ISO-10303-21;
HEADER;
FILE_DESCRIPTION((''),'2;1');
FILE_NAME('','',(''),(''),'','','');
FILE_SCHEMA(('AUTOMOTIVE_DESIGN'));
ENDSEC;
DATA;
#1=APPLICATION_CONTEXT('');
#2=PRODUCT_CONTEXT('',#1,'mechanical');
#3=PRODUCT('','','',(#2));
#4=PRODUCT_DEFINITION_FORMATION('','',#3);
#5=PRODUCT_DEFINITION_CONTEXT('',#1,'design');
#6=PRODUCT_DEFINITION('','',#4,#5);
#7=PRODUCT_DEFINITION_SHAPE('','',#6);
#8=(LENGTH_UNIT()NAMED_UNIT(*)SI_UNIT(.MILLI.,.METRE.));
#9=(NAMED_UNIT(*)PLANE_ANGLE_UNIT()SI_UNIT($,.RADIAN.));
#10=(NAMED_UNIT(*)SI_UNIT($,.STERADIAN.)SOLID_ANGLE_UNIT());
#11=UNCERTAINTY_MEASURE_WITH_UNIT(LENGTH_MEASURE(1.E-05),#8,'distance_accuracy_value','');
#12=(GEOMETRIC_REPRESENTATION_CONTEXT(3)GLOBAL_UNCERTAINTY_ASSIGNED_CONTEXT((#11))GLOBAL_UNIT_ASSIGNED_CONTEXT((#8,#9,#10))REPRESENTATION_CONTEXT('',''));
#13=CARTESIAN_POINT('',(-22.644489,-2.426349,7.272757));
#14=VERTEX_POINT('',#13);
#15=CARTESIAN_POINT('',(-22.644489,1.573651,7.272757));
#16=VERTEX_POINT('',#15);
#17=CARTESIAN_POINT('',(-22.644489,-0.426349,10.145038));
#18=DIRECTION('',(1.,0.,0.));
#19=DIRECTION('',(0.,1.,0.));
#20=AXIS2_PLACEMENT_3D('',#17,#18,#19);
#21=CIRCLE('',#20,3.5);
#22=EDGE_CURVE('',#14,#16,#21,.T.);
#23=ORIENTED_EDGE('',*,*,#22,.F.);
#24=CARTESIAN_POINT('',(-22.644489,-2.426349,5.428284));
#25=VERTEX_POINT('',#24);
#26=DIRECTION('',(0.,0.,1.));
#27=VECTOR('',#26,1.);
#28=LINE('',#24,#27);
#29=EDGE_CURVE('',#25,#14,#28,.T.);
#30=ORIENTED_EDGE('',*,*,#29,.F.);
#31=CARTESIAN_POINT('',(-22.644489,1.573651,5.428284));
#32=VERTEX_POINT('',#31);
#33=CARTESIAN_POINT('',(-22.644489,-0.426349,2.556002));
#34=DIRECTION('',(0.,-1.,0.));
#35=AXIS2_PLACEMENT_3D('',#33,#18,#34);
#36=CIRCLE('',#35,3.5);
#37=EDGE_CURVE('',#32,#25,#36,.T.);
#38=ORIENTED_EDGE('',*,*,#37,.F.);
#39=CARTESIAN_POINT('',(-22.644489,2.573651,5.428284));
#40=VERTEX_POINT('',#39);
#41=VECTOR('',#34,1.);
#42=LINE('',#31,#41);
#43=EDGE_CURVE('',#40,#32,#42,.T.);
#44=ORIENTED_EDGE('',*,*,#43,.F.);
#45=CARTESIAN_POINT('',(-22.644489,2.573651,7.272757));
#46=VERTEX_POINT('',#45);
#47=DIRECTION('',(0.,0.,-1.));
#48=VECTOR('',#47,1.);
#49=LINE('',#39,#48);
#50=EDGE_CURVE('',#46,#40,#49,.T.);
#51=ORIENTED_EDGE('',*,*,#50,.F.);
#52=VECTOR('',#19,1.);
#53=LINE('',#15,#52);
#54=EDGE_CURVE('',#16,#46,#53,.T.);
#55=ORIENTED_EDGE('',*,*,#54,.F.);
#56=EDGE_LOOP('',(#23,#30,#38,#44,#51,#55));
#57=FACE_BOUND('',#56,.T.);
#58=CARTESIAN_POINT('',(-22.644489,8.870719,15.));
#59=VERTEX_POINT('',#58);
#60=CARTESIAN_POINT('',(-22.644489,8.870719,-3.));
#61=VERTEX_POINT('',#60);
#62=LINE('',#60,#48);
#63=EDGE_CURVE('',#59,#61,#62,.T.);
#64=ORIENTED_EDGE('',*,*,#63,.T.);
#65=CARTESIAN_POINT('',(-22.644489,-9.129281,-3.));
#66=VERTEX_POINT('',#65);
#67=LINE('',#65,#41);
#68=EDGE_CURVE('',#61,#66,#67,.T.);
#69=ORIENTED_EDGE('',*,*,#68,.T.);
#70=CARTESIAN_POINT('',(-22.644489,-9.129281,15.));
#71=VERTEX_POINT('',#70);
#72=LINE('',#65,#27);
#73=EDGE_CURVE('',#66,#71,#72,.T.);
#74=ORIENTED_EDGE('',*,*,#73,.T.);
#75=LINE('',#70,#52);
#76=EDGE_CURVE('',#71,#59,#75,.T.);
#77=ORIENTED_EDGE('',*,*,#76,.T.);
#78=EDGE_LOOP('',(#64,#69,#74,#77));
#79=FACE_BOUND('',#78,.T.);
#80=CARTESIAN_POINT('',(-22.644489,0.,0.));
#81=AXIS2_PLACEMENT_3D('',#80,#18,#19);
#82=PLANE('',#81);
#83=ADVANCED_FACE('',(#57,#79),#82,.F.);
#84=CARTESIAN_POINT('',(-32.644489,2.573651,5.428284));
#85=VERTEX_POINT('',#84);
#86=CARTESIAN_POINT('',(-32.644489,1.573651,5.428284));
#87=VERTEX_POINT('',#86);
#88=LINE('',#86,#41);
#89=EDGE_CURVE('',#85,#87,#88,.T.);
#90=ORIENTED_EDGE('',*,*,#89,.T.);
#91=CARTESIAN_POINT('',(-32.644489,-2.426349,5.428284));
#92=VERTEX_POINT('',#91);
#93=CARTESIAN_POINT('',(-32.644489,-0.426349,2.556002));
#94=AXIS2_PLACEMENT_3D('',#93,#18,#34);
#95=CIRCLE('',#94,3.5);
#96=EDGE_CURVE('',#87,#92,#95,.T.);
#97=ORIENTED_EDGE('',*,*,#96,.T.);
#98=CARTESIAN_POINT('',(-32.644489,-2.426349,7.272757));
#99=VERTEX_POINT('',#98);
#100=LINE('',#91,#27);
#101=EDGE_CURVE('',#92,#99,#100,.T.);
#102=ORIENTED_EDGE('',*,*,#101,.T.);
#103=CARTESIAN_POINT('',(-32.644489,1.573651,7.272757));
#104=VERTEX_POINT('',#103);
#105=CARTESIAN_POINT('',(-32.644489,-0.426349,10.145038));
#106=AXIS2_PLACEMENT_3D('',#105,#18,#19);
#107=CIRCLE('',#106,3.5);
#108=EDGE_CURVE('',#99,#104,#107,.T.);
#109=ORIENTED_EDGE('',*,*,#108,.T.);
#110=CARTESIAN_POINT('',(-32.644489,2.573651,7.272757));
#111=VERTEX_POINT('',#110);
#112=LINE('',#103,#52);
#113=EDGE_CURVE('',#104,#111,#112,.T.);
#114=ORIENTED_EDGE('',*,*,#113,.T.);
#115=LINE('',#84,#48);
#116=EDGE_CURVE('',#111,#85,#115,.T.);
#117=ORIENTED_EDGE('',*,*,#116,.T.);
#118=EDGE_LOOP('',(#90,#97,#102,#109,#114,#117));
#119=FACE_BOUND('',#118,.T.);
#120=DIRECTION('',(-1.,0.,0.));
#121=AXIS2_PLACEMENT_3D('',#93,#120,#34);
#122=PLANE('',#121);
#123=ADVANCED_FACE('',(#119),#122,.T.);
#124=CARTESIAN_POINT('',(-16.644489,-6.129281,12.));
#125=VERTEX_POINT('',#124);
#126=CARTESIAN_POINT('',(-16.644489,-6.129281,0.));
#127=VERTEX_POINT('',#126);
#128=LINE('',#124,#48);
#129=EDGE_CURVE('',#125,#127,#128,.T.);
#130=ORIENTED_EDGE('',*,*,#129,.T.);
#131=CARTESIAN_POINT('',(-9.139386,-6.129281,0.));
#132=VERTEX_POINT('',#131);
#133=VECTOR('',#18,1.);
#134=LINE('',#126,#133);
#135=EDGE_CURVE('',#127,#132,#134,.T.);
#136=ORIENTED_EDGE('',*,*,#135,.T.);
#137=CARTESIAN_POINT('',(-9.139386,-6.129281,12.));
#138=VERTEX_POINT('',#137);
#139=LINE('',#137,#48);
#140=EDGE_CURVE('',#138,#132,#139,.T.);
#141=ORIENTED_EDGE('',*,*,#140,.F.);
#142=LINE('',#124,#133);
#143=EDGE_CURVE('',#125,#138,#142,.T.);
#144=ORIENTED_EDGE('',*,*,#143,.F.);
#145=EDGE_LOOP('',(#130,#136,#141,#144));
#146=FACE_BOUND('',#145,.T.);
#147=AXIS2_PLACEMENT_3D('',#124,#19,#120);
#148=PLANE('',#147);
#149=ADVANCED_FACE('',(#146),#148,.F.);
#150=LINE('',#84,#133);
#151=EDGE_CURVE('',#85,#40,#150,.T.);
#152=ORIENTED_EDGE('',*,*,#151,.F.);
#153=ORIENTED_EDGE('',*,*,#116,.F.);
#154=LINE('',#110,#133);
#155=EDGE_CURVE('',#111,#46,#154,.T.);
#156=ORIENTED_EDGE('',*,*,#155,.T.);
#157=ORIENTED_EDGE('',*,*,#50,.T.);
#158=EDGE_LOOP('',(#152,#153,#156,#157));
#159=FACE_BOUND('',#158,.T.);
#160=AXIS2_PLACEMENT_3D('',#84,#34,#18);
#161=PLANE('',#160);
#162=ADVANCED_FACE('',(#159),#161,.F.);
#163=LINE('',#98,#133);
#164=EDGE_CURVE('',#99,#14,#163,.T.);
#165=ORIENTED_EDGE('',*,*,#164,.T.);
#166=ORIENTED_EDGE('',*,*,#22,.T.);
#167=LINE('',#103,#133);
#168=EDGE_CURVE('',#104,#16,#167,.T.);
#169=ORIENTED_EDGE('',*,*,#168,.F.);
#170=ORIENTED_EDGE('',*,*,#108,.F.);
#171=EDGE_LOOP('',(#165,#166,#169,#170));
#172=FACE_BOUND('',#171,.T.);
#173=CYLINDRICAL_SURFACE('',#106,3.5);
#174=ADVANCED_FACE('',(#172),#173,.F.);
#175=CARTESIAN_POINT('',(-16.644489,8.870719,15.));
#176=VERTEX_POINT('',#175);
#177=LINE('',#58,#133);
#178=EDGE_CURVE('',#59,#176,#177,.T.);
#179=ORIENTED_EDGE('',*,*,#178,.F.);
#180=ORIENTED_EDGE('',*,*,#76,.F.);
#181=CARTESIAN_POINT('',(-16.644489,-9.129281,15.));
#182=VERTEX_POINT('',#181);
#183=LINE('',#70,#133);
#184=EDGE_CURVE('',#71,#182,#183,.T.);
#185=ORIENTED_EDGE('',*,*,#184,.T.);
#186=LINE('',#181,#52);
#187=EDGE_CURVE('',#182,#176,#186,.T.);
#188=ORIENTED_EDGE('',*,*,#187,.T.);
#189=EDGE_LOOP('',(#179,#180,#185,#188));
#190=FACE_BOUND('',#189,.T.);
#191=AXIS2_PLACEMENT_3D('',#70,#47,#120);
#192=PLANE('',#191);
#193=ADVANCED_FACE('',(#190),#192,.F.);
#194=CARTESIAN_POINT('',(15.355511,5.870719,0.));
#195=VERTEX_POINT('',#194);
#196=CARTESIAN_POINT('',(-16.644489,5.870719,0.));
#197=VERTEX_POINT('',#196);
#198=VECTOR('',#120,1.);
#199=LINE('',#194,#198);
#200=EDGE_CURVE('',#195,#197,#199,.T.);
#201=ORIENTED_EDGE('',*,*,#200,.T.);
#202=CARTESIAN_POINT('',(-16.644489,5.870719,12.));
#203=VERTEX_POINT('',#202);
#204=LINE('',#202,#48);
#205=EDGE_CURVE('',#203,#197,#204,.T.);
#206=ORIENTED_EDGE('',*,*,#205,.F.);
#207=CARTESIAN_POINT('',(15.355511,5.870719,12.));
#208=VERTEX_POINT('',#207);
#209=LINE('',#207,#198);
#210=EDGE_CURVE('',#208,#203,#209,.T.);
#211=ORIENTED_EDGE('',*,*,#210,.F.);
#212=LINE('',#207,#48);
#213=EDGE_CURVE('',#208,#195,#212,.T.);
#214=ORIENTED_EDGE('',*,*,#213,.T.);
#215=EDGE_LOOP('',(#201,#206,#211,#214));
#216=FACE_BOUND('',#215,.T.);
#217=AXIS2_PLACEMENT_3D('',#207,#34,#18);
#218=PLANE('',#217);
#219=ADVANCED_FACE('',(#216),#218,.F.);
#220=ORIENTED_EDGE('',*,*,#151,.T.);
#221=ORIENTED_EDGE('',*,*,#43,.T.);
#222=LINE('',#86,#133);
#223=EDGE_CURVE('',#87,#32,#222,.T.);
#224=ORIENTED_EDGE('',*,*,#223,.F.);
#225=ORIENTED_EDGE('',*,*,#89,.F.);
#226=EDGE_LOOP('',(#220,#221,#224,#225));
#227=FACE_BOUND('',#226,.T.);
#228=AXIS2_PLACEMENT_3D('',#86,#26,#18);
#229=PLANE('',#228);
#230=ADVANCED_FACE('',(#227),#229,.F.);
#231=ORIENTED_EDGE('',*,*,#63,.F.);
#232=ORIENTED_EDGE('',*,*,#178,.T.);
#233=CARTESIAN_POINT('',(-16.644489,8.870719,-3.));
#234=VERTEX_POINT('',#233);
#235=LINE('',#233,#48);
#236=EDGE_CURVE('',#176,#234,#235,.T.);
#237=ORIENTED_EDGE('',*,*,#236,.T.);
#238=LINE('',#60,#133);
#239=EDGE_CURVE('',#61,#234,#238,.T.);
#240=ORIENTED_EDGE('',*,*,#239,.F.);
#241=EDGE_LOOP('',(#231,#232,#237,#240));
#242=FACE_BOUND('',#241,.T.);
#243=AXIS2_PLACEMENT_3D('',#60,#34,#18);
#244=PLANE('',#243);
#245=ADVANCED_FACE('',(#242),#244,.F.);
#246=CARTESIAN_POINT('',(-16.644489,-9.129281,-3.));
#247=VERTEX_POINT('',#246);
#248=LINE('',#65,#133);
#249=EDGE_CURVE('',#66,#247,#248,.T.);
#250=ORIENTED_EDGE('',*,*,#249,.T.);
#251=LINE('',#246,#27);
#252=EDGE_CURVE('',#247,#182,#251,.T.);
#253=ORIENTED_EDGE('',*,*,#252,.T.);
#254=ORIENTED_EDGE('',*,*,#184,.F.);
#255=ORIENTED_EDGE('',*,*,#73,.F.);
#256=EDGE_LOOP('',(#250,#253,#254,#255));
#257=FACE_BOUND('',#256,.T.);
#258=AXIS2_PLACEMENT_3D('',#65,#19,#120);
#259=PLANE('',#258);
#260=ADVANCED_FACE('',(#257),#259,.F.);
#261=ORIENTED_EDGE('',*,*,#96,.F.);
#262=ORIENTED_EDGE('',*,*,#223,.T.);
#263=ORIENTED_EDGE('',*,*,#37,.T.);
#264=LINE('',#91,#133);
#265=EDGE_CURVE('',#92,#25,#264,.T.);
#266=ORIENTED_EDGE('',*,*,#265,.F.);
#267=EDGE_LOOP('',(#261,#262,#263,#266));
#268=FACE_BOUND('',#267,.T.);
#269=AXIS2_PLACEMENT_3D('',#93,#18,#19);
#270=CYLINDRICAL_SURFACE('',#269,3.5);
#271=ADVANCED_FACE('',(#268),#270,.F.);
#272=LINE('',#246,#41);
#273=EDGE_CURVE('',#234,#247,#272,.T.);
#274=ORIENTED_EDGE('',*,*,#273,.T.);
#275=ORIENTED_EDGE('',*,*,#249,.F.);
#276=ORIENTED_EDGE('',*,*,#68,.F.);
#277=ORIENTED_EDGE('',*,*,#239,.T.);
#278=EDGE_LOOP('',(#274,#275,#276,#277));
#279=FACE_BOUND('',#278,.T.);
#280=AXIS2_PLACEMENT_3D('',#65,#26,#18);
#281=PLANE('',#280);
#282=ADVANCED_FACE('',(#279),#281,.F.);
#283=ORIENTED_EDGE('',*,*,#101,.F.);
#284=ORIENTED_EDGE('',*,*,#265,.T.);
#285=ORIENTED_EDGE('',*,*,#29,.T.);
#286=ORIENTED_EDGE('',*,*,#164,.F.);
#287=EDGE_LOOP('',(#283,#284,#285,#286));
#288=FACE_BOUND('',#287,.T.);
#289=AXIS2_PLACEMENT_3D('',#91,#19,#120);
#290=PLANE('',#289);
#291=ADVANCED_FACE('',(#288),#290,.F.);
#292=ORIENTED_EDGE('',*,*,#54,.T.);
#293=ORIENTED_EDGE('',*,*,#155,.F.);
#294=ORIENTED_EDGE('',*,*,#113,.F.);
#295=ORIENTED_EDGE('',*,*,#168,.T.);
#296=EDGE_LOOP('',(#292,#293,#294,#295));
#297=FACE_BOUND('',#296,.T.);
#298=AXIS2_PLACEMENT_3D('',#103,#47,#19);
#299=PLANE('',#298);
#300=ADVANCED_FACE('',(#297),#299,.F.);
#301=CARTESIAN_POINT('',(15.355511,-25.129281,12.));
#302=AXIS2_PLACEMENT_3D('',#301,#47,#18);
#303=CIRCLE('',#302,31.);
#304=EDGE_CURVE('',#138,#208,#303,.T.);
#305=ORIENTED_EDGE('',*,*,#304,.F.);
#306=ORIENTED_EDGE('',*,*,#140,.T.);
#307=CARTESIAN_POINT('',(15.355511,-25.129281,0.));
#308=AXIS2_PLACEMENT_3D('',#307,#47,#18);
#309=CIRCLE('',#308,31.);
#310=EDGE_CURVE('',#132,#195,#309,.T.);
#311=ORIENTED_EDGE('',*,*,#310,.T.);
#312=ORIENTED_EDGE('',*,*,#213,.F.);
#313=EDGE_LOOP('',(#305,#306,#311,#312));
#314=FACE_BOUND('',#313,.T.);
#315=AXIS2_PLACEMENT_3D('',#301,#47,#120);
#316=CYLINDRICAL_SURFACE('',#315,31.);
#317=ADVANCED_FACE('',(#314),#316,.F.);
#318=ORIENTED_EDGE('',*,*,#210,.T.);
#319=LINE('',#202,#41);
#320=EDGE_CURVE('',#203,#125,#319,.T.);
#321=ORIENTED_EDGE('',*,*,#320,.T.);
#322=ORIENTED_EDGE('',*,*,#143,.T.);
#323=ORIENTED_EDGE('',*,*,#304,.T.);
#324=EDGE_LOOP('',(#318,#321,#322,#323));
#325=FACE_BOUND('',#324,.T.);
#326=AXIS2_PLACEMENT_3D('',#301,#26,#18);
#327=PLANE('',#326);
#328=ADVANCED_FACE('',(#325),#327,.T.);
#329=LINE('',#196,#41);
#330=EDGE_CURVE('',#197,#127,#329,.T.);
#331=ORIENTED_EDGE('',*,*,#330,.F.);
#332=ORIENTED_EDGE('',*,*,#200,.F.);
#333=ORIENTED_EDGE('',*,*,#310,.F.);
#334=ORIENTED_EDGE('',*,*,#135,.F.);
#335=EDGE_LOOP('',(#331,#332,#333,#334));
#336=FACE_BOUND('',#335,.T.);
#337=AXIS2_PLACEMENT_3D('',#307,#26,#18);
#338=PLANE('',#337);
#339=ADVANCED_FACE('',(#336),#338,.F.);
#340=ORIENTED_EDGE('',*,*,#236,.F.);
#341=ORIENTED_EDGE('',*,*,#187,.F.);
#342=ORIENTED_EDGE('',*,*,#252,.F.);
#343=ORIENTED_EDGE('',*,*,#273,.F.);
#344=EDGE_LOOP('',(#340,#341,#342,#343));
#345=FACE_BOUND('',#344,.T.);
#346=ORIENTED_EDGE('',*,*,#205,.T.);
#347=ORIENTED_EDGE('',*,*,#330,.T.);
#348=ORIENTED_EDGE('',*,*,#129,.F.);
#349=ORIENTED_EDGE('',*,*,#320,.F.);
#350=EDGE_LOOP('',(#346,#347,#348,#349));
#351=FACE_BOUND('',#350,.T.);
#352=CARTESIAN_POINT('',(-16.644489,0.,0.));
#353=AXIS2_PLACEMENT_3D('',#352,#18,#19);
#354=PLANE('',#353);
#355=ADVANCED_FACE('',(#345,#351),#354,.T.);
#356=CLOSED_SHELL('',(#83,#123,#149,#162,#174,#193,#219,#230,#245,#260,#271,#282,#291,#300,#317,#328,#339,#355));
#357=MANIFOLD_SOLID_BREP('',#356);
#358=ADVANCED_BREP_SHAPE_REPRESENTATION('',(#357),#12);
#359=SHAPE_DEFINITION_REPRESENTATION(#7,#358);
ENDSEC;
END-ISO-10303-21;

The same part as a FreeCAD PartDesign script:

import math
import FreeCAD as App
import Part
import Sketcher
from FreeCAD import Vector


def add_polygon(sketch, points):
    """Adds a closed chain of lines whose ends are joined by coincident constraints."""
    first, n = sketch.GeometryCount, len(points)
    for a, b in zip(points, points[1:] + points[:1]):
        sketch.addGeometry(Part.LineSegment(App.Vector(*a, 0), App.Vector(*b, 0)), False)
    for i in range(n):
        sketch.addConstraint(Sketcher.Constraint("Coincident", first + i, 2, first + (i + 1) % n, 1))

doc = App.newDocument("Part")
params = doc.addObject("Spreadsheet::Sheet", "Params")
for row, (alias, value) in enumerate([
    ("sketch1_radius", "31 mm"),
    ("sketch1_width", "32 mm"),
    ("sketch1_height", "12 mm"),
    ("pad1_length", "12 mm"),
    ("sketch2_width", "18 mm"),
    ("pad2_length", "6 mm"),
    ("sketch3_radius", "3.5 mm"),
    ("sketch3_width", "1 mm"),
    ("pad3_length", "10 mm"),
], start=1):
    params.set(f"A{row}", alias)
    params.set(f"B{row}", "=" + value)
    params.setAlias(f"B{row}", alias)

body = doc.addObject("PartDesign::Body", "Body")

# Sketch on XY plane
sketch1 = body.newObject("Sketcher::SketchObject", "Sketch")
sketch1.AttachmentSupport = (doc.getObject("XY_Plane"), [""])
sketch1.MapMode = "FlatFace"
sketch1.addGeometry([
    Part.LineSegment(Vector(15.355511, 5.870719, 0), Vector(-16.644489, 5.870719, 0)),
    Part.LineSegment(Vector(-16.644489, 5.870719, 0), Vector(-16.644489, -6.129281, 0)),
    Part.LineSegment(Vector(-16.644489, -6.129281, 0), Vector(-9.139386, -6.129281, 0)),
    Part.ArcOfCircle(Part.Circle(Vector(15.355511, -25.129281, 0), Vector(0, 0, 1), 31), math.radians(90), math.radians(142.200278)),
], False)
sketch1.addConstraint([
    Sketcher.Constraint("Coincident", 0, 2, 1, 1),
    Sketcher.Constraint("Coincident", 1, 2, 2, 1),
    Sketcher.Constraint("Coincident", 2, 2, 3, 2),
    Sketcher.Constraint("Tangent", 3, 1, 0, 1),
    Sketcher.Constraint("Horizontal", 0),
    Sketcher.Constraint("Vertical", 1),
    Sketcher.Constraint("Horizontal", 2),
    Sketcher.Constraint("Radius", 3, 31.0),
    Sketcher.Constraint("DistanceX", 0, 2, 0, 1, 32.0),
    Sketcher.Constraint("DistanceY", 1, 2, 1, 1, 12.0),
    Sketcher.Constraint("DistanceX", -1, 1, 3, 3, 15.355511),
    Sketcher.Constraint("DistanceY", 3, 3, -1, 1, 25.129281),
])
sketch1.setExpression("Constraints[7]", "Params.sketch1_radius")
sketch1.setExpression("Constraints[8]", "Params.sketch1_width")
sketch1.setExpression("Constraints[9]", "Params.sketch1_height")
pad1 = body.newObject("PartDesign::Pad", "Pad")
pad1.Profile = sketch1
pad1.setExpression("Length", "Params.pad1_length")

# Sketch on YZ plane
sketch2 = body.newObject("Sketcher::SketchObject", "Sketch001")
sketch2.AttachmentSupport = (doc.getObject("YZ_Plane"), [""])
sketch2.MapMode = "FlatFace"
sketch2.AttachmentOffset = App.Placement(Vector(0, 0, -16.644489), App.Rotation())
add_polygon(sketch2, [(8.870719, -3), (-9.129281, -3), (-9.129281, 15), (8.870719, 15)])  # lines 0-3
sketch2.addConstraint([
    Sketcher.Constraint("Horizontal", 0),
    Sketcher.Constraint("Vertical", 1),
    Sketcher.Constraint("Horizontal", 2),
    Sketcher.Constraint("Vertical", 3),
    Sketcher.Constraint("Equal", 2, 1),
    Sketcher.Constraint("DistanceX", 0, 2, 0, 1, 18.0),
    Sketcher.Constraint("DistanceY", 0, 2, -1, 1, 3.0),
    Sketcher.Constraint("DistanceX", 0, 2, -1, 1, 9.129281),
])
sketch2.setExpression("Constraints[9]", "Params.sketch2_width")
pad2 = body.newObject("PartDesign::Pad", "Pad001")
pad2.Profile = sketch2
pad2.setExpression("Length", "Params.pad2_length")
pad2.Reversed = True

# Sketch on YZ plane
sketch3 = body.newObject("Sketcher::SketchObject", "Sketch002")
sketch3.AttachmentSupport = (doc.getObject("YZ_Plane"), [""])
sketch3.MapMode = "FlatFace"
sketch3.AttachmentOffset = App.Placement(Vector(0, 0, -22.644489), App.Rotation())
sketch3.addGeometry([
    Part.LineSegment(Vector(2.573651, 5.428284, 0), Vector(1.573651, 5.428284, 0)),  # 0
    Part.ArcOfCircle(Part.Circle(Vector(-0.426349, 2.556002, 0), Vector(0, 0, 1), 3.5), math.radians(55.150095), math.radians(124.849905)),  # 1
    Part.LineSegment(Vector(-2.426349, 5.428284, 0), Vector(-2.426349, 7.272757, 0)),  # 2
    Part.ArcOfCircle(Part.Circle(Vector(-0.426349, 10.145038, 0), Vector(0, 0, 1), 3.5), math.radians(-124.849905), math.radians(-55.150095)),  # 3
    Part.LineSegment(Vector(1.573651, 7.272757, 0), Vector(2.573651, 7.272757, 0)),  # 4
    Part.LineSegment(Vector(2.573651, 7.272757, 0), Vector(2.573651, 5.428284, 0)),  # 5
], False)
sketch3.addConstraint([
    Sketcher.Constraint("Coincident", 0, 2, 1, 1),
    Sketcher.Constraint("Coincident", 1, 2, 2, 1),
    Sketcher.Constraint("Coincident", 2, 2, 3, 1),
    Sketcher.Constraint("Coincident", 3, 2, 4, 1),
    Sketcher.Constraint("Coincident", 4, 2, 5, 1),
    Sketcher.Constraint("Coincident", 5, 2, 0, 1),
    Sketcher.Constraint("Horizontal", 0),
    Sketcher.Constraint("Vertical", 2),
    Sketcher.Constraint("Horizontal", 4),
    Sketcher.Constraint("Vertical", 5),
    Sketcher.Constraint("Equal", 1, 3),
    Sketcher.Constraint("Horizontal", 0, 2, 1, 2),
    Sketcher.Constraint("Horizontal", 2, 2, 3, 2),
    Sketcher.Constraint("Vertical", 1, 3, 3, 3),
    Sketcher.Constraint("Radius", 1, 3.5),
    Sketcher.Constraint("DistanceX", 0, 2, 0, 1, 1.0),
    Sketcher.Constraint("DistanceX", 1, 3, 0, 2, 2.0),
    Sketcher.Constraint("DistanceY", 2, 1, 2, 2, 1.844474),
    Sketcher.Constraint("DistanceX", 1, 3, -1, 1, 0.426349),
    Sketcher.Constraint("DistanceY", -1, 1, 3, 3, 10.145038),
])
sketch3.setExpression("Constraints[14]", "Params.sketch3_radius")
sketch3.setExpression("Constraints[15]", "Params.sketch3_width")
pad3 = body.newObject("PartDesign::Pad", "Pad002")
pad3.Profile = sketch3
pad3.setExpression("Length", "Params.pad3_length")
pad3.Reversed = True

doc.recompute()
